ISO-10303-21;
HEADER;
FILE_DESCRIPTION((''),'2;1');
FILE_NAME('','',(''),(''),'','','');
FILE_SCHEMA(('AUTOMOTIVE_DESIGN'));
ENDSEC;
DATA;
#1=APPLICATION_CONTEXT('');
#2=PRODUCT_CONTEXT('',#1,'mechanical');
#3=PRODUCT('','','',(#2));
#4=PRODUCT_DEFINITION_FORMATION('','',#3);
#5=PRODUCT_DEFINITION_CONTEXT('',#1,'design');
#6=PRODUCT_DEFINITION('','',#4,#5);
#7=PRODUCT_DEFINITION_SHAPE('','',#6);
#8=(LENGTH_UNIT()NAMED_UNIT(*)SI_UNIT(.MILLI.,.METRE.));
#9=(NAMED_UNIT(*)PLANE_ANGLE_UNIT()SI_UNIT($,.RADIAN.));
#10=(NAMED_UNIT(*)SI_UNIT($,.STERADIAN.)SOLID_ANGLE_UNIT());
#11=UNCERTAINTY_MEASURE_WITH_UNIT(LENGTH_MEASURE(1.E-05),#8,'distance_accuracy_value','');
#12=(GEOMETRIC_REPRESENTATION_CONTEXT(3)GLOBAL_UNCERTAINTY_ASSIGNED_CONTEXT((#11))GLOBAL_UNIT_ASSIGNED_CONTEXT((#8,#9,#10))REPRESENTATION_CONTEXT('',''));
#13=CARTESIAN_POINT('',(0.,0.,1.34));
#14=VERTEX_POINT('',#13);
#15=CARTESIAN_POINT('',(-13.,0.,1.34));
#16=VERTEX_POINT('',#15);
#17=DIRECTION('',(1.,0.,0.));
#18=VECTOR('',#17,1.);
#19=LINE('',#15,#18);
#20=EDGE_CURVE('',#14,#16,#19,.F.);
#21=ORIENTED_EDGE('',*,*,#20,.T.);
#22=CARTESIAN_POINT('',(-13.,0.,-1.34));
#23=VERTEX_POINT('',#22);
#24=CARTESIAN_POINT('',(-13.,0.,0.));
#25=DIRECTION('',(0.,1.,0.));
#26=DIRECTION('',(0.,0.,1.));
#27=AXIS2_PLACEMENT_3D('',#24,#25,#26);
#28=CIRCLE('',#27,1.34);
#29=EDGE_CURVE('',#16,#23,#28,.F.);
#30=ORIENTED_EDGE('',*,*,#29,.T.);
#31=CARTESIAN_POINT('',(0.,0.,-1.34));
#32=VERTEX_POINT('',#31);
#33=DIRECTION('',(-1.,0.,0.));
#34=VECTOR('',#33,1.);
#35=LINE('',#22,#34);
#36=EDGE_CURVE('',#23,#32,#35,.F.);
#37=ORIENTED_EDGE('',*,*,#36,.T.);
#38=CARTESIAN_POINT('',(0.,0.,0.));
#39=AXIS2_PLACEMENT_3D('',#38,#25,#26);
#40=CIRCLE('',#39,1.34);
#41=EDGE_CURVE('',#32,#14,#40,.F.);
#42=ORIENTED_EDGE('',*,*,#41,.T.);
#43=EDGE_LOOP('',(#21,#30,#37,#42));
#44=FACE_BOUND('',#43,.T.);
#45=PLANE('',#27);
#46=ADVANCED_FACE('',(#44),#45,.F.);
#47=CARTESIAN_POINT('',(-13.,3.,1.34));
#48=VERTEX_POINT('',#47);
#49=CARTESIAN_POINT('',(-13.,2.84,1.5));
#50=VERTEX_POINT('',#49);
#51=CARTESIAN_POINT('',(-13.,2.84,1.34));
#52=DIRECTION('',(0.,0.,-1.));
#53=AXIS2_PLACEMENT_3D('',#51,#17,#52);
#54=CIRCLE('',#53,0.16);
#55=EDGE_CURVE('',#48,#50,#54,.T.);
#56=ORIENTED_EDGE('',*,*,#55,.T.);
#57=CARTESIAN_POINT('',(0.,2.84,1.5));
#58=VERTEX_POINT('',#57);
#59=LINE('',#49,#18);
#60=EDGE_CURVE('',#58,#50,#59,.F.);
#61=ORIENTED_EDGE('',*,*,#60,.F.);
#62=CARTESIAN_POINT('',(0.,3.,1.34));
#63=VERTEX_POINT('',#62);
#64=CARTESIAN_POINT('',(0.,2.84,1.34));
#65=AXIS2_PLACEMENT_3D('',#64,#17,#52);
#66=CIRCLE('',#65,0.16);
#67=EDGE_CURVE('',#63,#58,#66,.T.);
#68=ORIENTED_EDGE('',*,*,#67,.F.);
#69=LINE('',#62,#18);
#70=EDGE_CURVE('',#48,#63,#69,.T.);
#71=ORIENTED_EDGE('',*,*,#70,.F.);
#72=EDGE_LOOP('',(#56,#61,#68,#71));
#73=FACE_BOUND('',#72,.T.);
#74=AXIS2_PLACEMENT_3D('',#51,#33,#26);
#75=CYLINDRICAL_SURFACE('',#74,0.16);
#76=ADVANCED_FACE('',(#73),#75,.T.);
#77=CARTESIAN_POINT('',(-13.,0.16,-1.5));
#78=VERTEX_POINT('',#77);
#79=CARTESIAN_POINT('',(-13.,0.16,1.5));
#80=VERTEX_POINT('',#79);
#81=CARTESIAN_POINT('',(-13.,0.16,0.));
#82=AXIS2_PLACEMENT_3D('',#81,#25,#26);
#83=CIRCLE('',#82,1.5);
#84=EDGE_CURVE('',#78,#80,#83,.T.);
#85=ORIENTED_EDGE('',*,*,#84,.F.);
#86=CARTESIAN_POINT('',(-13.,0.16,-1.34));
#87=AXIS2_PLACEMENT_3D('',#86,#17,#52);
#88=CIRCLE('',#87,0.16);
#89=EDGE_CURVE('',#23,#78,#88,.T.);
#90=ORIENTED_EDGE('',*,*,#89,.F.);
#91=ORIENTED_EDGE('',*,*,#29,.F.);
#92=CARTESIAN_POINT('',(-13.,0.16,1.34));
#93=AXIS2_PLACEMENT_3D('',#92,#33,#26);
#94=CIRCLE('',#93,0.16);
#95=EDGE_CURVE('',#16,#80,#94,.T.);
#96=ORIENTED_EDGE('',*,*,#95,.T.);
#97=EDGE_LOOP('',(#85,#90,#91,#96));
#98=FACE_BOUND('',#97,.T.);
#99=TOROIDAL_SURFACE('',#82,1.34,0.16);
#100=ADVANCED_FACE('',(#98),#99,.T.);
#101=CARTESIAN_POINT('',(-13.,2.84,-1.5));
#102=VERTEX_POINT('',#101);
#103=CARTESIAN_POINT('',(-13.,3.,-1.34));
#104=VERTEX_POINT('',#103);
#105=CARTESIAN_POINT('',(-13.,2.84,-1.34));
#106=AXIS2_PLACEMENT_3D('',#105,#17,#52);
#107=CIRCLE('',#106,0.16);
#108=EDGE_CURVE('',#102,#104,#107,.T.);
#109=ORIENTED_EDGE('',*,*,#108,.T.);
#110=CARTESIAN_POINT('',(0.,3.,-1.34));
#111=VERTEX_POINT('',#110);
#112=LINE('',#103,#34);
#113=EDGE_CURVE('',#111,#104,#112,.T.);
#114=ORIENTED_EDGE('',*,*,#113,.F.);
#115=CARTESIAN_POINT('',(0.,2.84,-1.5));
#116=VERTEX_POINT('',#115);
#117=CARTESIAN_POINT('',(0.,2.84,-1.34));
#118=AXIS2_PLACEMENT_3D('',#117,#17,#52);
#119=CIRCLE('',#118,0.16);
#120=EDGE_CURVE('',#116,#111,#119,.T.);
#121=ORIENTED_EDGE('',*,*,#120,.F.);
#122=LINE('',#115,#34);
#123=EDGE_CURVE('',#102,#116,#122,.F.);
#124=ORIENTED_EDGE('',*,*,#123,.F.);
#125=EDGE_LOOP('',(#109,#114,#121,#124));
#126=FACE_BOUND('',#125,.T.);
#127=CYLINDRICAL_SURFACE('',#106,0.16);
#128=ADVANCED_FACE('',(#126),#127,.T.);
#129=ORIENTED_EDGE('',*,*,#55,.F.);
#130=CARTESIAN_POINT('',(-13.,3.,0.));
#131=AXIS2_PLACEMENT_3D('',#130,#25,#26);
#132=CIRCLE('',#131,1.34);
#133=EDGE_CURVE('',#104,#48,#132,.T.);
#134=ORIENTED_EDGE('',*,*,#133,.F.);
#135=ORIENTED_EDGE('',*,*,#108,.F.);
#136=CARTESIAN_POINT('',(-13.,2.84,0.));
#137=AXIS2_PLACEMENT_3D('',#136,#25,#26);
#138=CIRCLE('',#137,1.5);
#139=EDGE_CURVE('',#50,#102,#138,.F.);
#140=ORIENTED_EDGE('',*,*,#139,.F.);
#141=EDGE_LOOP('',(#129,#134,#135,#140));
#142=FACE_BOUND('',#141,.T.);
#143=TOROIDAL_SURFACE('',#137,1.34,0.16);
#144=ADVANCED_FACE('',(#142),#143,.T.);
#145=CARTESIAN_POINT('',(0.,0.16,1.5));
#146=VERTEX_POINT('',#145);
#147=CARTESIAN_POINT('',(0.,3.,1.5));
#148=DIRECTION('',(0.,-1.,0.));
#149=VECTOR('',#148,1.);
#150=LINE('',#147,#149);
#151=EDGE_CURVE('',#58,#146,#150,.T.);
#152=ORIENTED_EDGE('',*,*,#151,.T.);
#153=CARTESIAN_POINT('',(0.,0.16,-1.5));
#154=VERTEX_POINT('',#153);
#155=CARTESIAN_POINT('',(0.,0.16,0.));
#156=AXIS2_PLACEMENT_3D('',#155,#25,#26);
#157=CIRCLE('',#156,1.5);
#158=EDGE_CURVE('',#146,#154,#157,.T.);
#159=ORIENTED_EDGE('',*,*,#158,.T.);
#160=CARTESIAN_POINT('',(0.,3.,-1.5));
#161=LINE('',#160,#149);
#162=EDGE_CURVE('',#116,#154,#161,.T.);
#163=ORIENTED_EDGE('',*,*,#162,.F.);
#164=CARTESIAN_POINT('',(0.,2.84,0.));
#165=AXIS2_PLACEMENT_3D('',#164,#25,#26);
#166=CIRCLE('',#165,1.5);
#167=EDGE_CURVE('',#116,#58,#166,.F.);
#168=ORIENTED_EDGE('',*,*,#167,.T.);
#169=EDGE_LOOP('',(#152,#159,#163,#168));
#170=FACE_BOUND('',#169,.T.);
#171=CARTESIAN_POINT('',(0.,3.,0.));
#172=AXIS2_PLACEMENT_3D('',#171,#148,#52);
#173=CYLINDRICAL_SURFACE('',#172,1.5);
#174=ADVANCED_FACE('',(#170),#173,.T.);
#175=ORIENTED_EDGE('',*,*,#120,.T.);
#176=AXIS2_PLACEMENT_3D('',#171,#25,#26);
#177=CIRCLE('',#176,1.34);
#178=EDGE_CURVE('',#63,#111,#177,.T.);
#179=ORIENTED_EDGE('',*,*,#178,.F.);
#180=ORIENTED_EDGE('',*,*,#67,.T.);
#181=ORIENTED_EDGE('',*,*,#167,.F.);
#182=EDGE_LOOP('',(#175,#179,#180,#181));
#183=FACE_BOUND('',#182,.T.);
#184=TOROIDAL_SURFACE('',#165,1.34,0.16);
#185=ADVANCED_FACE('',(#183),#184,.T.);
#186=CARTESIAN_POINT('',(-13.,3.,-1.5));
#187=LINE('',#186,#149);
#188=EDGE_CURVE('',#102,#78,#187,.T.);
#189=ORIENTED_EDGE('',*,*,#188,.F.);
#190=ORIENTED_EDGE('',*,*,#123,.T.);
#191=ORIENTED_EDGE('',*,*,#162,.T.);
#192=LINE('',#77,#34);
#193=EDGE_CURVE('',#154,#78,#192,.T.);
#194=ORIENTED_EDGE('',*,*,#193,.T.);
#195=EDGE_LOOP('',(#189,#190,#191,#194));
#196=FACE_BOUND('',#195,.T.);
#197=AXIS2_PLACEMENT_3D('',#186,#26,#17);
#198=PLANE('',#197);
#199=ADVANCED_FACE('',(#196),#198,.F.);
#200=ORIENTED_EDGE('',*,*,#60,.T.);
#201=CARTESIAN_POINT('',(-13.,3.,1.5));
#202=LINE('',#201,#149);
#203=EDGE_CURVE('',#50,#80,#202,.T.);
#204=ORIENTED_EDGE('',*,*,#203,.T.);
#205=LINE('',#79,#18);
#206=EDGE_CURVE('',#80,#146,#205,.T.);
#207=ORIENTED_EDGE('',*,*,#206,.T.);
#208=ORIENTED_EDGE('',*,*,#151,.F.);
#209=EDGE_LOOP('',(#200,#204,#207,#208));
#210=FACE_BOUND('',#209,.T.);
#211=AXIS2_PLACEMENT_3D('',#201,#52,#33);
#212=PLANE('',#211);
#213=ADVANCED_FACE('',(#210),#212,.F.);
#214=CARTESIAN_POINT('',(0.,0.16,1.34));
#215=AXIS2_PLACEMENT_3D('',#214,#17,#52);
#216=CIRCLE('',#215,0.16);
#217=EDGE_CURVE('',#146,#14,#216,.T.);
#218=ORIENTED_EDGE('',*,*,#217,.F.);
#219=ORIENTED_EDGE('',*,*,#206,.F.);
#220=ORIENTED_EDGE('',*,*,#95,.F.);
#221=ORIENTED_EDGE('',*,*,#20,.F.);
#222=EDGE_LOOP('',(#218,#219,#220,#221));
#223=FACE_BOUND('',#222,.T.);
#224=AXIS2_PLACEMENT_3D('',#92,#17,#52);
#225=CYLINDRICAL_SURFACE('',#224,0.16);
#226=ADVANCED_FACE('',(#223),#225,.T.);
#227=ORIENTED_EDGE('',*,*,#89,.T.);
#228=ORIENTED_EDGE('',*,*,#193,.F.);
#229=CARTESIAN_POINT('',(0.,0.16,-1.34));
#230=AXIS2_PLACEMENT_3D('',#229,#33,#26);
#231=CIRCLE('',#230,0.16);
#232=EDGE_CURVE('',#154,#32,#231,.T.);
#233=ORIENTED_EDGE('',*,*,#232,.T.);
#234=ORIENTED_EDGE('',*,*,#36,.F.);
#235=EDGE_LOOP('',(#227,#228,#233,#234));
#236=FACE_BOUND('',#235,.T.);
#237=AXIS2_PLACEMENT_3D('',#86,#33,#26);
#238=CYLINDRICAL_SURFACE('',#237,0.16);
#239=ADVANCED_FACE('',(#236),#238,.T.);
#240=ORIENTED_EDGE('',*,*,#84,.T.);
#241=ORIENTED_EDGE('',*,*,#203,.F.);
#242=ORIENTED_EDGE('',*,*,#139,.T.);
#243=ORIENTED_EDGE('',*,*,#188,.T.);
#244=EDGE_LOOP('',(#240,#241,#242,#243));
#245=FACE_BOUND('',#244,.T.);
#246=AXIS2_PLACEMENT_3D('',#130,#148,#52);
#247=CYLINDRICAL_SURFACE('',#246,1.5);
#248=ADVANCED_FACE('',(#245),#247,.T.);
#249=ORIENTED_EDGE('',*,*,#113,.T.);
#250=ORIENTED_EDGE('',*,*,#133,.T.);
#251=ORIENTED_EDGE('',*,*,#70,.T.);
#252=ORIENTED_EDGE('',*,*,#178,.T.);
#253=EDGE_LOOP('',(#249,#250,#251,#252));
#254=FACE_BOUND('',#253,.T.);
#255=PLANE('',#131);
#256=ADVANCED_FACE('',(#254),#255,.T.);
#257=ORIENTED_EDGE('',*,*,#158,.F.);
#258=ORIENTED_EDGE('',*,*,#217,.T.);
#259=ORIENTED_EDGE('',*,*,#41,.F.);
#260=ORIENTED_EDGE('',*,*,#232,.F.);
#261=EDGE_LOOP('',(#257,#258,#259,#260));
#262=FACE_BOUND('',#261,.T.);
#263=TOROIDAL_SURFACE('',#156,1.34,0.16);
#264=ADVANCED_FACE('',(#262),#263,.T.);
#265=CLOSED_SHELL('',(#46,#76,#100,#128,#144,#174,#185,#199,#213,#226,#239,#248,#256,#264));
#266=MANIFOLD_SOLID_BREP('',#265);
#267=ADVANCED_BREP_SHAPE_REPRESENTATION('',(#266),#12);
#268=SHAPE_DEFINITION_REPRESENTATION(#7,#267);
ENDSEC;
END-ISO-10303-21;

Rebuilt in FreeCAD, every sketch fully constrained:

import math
import FreeCAD as App
import Part
import Sketcher


def edges_at(feature, points):
    """Names of the edges that pass closest to the given points."""
    edges = feature.Shape.Edges
    near = lambda p: min(range(len(edges)), key=lambda i: edges[i].distToShape(Part.Vertex(*p))[0])
    return sorted({f"Edge{near(p) + 1}" for p in points})

doc = App.newDocument("Part")
body = doc.addObject("PartDesign::Body", "Body")

# Sketch on XZ plane
sketch1 = doc.addObject("Sketcher::SketchObject", "Sketch")
body.addObject(sketch1)
sketch1.AttachmentSupport = (doc.XZ_Plane, [""])
sketch1.MapMode = "FlatFace"
sketch1.addGeometry([
    Part.LineSegment(App.Vector(0, -1.5, 0), App.Vector(-13, -1.5, 0)),
    Part.ArcOfCircle(Part.Circle(App.Vector(-13, 0, 0), App.Vector(0, 0, 1), 1.5), math.radians(90), math.radians(270)),
    Part.LineSegment(App.Vector(-13, 1.5, 0), App.Vector(0, 1.5, 0)),
    Part.ArcOfCircle(Part.Circle(App.Vector(0, 0, 0), App.Vector(0, 0, 1), 1.5), math.radians(-90), math.radians(90)),
], False)
sketch1.addConstraint([
    Sketcher.Constraint("Tangent", 0, 2, 1, 2),
    Sketcher.Constraint("Tangent", 1, 1, 2, 1),
    Sketcher.Constraint("Tangent", 2, 2, 3, 2),
    Sketcher.Constraint("Tangent", 3, 1, 0, 1),
    Sketcher.Constraint("Horizontal", 0),
    Sketcher.Constraint("Horizontal", 2),
    Sketcher.Constraint("Coincident", 3, 3, -1, 1),
    Sketcher.Constraint("Radius", 1, 1.5),
    Sketcher.Constraint("DistanceX", 0, 2, 0, 1, 13.0),
])
pad1 = doc.addObject("PartDesign::Pad", "Pad")
body.addObject(pad1)
pad1.Profile = sketch1
pad1.Length = 3
pad1.Reversed = True
doc.recompute()

fillet = doc.addObject("PartDesign::Fillet", "Fillet")
body.addObject(fillet)
fillet.Base = (pad1, edges_at(pad1, [
    (1.5, 3, 0),
    (-6.5, 3, -1.5),
    (-14.5, 3, 0),
    (-6.5, 0, -1.5),
    (1.5, 0, 0),
    (-6.5, 0, 1.5),
    (-14.5, 0, 0),
    (-6.5, 3, 1.5),
]))
fillet.Radius = 0.16

doc.recompute()
